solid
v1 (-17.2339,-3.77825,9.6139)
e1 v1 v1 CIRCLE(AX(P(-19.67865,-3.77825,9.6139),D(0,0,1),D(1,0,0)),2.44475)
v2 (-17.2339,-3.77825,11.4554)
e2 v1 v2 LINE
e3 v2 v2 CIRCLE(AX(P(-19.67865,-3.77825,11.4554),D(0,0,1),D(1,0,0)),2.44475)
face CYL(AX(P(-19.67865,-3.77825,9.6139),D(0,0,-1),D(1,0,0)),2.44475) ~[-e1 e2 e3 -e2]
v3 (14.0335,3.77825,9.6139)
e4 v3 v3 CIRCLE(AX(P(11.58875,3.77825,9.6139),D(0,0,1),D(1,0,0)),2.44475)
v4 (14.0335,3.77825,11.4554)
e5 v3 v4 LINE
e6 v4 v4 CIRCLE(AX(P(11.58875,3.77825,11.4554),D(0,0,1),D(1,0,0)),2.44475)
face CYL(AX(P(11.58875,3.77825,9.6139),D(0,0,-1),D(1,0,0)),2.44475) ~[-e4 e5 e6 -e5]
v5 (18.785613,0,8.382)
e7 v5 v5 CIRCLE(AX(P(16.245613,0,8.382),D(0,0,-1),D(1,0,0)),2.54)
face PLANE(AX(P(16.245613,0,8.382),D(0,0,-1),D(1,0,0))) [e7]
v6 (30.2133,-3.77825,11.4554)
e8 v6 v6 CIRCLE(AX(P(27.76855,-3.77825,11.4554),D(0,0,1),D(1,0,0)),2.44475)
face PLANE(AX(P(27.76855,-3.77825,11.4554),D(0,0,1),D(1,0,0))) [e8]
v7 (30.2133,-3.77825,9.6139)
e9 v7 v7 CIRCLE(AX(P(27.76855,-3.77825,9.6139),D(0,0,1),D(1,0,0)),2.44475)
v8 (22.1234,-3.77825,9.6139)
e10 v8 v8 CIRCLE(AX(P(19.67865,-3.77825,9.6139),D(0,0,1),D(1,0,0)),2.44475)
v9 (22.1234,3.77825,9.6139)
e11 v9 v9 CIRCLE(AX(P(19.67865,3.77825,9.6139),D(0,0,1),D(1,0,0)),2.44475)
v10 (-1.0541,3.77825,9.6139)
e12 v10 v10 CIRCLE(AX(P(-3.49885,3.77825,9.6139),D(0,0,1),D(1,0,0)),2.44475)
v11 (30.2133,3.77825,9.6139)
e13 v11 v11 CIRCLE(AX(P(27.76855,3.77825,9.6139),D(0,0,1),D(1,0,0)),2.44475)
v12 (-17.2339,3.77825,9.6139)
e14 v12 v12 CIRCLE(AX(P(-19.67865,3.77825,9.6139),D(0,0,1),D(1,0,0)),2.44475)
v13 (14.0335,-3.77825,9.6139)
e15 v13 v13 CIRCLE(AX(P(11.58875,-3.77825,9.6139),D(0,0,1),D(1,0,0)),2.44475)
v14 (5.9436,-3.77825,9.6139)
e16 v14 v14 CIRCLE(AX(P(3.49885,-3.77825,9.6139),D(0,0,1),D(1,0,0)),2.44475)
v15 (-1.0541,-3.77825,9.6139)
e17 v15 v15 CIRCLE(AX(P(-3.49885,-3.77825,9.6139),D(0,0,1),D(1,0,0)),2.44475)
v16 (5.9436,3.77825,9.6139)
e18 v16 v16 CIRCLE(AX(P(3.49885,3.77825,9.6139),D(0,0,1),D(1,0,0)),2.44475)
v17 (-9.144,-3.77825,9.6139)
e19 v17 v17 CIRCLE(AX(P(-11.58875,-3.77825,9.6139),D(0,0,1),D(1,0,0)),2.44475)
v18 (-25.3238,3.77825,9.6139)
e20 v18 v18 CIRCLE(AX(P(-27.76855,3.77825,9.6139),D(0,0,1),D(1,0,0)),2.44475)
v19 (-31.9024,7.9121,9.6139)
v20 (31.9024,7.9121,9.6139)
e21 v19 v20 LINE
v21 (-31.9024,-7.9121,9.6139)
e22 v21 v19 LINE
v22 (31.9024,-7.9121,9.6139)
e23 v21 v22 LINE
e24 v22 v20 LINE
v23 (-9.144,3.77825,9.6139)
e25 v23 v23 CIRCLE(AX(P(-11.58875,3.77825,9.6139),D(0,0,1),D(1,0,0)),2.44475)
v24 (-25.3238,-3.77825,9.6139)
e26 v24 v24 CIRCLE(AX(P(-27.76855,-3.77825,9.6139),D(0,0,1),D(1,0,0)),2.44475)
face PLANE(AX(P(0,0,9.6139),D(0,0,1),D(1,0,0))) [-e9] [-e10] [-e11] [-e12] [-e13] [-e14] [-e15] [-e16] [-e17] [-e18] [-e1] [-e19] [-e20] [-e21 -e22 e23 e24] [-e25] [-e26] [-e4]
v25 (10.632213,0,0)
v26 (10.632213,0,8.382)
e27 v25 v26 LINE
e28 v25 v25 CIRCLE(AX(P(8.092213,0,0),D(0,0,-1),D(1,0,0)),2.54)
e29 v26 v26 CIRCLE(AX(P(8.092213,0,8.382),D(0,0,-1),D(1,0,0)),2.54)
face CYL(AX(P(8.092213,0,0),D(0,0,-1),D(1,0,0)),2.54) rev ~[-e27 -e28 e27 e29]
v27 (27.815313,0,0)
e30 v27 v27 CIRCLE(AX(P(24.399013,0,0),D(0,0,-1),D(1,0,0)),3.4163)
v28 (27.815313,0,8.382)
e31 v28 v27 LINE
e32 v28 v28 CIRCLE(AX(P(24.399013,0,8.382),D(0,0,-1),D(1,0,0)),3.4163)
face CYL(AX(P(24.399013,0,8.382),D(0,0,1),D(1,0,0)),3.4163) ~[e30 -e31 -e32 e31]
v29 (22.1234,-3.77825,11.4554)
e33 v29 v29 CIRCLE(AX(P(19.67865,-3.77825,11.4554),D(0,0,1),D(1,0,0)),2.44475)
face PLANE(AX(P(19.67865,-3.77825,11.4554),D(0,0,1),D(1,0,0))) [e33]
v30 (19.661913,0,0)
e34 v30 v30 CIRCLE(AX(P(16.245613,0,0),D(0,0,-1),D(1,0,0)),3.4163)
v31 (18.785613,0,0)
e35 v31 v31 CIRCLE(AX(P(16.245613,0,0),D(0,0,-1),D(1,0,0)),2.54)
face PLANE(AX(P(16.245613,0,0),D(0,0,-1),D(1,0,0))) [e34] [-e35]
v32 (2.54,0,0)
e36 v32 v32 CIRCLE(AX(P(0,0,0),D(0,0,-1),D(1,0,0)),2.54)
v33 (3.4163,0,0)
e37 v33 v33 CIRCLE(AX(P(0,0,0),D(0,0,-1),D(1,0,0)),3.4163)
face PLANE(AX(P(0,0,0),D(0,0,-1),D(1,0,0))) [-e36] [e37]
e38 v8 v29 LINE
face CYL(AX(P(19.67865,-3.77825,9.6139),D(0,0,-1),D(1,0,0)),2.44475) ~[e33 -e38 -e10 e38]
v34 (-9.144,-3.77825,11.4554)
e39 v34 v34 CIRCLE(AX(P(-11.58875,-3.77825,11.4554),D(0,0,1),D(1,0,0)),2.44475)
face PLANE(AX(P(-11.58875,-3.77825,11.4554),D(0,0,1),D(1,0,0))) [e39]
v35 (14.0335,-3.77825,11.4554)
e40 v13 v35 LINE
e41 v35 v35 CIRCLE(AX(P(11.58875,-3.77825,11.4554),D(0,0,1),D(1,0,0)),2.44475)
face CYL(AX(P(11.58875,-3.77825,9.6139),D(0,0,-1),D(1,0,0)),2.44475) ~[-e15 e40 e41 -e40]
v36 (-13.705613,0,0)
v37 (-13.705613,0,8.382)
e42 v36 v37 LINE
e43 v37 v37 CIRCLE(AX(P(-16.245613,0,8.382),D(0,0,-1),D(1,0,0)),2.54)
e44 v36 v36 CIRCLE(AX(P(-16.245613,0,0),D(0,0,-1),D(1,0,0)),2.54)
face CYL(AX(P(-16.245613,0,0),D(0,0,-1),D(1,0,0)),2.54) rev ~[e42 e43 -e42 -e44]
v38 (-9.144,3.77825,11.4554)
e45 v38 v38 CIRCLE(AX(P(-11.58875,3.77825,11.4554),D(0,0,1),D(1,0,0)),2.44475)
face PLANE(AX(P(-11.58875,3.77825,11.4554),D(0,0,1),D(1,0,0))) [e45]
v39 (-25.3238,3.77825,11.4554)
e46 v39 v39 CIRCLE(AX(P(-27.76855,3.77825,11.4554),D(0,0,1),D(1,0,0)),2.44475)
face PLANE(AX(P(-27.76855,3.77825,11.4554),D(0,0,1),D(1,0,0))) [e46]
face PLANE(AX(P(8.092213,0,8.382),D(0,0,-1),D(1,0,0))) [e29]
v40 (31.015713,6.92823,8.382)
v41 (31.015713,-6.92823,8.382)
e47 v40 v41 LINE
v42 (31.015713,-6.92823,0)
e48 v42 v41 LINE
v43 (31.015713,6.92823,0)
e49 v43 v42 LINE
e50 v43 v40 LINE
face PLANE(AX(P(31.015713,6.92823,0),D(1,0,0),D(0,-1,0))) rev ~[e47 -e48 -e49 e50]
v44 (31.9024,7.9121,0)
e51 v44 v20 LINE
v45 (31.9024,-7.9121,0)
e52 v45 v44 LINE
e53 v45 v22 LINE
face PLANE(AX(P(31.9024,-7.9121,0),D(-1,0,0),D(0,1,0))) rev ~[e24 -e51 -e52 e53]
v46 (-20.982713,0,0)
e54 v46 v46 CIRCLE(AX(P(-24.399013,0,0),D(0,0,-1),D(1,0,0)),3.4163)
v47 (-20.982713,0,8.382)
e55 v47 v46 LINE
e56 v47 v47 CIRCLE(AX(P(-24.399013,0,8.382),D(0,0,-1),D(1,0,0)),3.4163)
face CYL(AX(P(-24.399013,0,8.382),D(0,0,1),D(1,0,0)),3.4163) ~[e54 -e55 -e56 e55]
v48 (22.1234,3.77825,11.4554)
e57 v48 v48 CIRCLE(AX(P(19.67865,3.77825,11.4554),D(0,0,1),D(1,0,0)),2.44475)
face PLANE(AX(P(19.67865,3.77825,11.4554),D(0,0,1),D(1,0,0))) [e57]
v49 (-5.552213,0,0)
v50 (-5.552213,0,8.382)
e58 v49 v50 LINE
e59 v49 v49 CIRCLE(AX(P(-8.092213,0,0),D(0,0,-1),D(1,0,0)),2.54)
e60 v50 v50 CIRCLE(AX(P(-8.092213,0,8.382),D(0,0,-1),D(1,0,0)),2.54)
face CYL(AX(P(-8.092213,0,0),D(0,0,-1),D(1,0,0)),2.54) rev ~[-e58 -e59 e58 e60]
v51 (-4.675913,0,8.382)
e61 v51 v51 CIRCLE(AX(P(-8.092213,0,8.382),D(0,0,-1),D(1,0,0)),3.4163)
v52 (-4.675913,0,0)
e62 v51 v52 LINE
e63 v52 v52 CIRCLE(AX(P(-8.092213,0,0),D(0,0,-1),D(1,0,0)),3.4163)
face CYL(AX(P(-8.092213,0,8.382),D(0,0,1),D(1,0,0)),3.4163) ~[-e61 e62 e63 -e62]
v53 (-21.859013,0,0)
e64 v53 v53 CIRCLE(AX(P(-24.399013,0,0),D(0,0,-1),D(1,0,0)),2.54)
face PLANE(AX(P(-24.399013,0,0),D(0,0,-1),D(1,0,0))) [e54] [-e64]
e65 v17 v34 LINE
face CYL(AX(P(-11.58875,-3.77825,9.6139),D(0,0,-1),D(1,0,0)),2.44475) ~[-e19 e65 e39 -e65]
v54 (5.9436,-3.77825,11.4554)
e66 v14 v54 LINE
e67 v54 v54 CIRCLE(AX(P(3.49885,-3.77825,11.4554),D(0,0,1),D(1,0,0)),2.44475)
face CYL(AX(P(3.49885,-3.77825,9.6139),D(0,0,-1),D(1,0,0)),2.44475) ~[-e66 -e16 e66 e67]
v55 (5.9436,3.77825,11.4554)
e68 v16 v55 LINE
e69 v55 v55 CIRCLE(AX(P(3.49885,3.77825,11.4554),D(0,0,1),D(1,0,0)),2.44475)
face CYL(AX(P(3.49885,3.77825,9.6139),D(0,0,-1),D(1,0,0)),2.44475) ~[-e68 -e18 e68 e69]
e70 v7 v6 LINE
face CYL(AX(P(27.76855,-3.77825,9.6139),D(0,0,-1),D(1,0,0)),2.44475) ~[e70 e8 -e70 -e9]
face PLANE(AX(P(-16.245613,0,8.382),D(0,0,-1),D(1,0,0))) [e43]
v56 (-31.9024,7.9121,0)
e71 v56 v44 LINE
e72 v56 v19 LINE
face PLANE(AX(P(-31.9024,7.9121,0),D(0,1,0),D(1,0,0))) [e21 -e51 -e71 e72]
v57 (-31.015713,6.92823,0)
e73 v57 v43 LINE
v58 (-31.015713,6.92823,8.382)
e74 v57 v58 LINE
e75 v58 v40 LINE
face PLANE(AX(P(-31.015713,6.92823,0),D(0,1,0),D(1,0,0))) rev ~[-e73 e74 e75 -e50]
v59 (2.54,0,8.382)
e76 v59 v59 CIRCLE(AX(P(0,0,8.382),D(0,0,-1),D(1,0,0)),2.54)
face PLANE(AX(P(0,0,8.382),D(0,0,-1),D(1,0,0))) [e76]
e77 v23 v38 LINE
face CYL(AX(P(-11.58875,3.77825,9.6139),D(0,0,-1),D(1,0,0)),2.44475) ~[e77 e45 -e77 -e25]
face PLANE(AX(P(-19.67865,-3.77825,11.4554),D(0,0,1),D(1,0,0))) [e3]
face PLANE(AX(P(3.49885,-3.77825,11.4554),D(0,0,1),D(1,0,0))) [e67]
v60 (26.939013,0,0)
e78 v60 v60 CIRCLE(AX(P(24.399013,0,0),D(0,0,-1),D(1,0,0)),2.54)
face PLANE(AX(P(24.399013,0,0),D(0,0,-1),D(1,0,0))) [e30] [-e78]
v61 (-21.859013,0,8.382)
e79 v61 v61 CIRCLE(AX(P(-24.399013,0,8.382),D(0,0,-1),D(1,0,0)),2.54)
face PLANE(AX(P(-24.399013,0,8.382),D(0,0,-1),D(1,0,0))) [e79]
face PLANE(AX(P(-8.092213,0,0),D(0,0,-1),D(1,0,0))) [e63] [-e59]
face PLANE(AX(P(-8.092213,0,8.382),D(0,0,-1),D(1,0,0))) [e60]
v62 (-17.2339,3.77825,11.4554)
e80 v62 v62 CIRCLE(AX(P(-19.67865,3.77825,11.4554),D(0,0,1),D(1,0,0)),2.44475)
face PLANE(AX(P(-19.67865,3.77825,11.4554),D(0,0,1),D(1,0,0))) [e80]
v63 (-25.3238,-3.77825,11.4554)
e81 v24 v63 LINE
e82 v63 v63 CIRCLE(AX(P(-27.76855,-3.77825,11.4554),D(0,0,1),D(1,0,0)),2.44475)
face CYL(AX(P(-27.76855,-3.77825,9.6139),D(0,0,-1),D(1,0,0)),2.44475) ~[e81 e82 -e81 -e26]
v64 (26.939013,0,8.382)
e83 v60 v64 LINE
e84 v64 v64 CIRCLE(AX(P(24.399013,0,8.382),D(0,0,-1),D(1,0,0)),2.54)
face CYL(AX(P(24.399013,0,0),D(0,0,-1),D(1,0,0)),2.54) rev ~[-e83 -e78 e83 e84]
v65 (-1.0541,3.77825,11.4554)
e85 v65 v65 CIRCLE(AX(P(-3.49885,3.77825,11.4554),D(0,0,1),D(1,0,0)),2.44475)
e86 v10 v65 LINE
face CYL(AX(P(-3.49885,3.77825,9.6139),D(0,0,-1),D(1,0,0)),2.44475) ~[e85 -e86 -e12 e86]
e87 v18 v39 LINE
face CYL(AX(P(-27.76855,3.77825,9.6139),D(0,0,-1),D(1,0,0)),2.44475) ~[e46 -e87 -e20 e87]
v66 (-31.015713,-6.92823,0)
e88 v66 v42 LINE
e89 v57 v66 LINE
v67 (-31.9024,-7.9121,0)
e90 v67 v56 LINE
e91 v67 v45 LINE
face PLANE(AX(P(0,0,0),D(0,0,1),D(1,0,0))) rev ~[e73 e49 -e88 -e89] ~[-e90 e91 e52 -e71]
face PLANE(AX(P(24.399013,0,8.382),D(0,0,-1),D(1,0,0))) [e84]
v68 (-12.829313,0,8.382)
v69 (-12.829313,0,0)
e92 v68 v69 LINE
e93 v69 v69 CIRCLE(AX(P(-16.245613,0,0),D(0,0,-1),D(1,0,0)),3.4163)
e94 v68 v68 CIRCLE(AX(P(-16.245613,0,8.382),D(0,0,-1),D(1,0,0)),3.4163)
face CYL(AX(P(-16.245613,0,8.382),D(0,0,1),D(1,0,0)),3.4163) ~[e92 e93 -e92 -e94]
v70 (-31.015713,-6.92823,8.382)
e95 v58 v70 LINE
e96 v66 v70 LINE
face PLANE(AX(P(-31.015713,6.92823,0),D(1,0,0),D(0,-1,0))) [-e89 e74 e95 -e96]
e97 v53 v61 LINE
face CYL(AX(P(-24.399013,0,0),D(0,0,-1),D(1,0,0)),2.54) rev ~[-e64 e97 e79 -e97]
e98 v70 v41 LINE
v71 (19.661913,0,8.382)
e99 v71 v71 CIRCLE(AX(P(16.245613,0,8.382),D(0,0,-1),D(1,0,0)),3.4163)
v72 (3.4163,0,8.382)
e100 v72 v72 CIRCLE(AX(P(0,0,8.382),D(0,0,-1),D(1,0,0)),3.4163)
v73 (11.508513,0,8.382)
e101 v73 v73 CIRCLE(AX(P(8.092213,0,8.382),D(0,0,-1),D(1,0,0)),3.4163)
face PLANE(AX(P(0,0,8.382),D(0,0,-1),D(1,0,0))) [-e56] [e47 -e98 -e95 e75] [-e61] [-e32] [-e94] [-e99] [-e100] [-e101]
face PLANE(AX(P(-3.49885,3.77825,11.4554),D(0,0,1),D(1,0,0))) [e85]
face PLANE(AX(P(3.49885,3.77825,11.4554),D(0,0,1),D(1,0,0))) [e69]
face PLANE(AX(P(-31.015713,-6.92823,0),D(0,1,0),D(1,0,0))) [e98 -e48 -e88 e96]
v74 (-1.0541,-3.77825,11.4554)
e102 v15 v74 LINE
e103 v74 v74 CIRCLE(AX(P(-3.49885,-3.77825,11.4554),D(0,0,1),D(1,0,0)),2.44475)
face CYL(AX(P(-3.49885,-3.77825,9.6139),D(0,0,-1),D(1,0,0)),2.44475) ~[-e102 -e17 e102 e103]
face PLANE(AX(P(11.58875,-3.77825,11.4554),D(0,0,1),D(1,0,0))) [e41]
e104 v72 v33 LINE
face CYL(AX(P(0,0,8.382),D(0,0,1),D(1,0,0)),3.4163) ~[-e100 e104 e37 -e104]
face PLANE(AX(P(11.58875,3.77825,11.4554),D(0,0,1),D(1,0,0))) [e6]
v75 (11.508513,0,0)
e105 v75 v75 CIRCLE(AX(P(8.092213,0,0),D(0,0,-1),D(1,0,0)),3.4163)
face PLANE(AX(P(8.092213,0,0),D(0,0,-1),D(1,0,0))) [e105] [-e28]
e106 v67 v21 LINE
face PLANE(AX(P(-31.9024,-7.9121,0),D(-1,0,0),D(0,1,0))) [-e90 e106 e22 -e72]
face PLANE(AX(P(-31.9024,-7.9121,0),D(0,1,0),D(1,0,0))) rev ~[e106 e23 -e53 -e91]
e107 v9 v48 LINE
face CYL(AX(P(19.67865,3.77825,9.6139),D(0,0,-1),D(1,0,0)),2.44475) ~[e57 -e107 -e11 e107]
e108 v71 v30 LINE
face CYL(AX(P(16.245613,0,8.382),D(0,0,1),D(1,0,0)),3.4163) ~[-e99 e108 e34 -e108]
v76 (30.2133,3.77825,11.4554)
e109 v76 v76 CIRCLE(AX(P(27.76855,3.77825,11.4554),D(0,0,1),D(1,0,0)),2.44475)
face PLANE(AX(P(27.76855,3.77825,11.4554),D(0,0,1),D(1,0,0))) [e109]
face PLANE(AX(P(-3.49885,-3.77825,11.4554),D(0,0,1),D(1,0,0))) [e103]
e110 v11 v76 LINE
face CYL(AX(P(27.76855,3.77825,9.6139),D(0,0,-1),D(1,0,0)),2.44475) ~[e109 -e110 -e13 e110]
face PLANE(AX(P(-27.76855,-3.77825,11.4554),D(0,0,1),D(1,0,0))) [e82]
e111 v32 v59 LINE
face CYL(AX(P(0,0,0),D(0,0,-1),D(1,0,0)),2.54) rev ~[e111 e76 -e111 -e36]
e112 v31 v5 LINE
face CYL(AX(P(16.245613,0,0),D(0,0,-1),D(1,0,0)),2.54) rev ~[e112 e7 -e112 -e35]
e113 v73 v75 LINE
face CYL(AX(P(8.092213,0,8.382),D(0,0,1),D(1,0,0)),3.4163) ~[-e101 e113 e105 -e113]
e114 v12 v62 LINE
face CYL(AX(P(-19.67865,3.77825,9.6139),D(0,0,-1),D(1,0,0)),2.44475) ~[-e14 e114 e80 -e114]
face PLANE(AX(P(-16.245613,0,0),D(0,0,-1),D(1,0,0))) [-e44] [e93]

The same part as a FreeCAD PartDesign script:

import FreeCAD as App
import Part
import Sketcher

V = App.Vector
Q = App.Units.Quantity


def add_polygon(sketch, points):
    """Adds a closed chain of lines whose ends are joined by coincident constraints."""
    first, n = sketch.GeometryCount, len(points)
    for a, b in zip(points, points[1:] + points[:1]):
        sketch.addGeometry(Part.LineSegment(App.Vector(*a, 0), App.Vector(*b, 0)), False)
    for i in range(n):
        sketch.addConstraint(Sketcher.Constraint("Coincident", first + i, 2, first + (i + 1) % n, 1))

doc = App.newDocument("Part")
body = doc.addObject("PartDesign::Body", "Body")

# Sketch on XY plane
sketch1 = body.newObject("Sketcher::SketchObject", "Sketch")
sketch1.AttachmentSupport = (doc.getObject("XY_Plane"), [""])
sketch1.MapMode = "FlatFace"
add_polygon(sketch1, [(-32, 8), (-32, -8), (32, -8), (32, 8)])  # lines 0-3
sketch1.addConstraint([
    Sketcher.Constraint("Vertical", 0),
    Sketcher.Constraint("Horizontal", 1),
    Sketcher.Constraint("Vertical", 2),
    Sketcher.Constraint("Horizontal", 3),
    Sketcher.Constraint("Symmetric", 0, 2, 2, 2, -1, 1),
    Sketcher.Constraint("DistanceX", 1, 1, 1, 2, Q("2.512 in")),
    Sketcher.Constraint("DistanceY", 0, 2, 0, 1, Q("0.623 in")),
])
pad1 = body.newObject("PartDesign::Pad", "Pad")
pad1.Profile = sketch1
pad1.Length = Q("0.3785 in")

# Sketch on XY plane
sketch2 = body.newObject("Sketcher::SketchObject", "Sketch001")
sketch2.AttachmentSupport = (doc.getObject("XY_Plane"), [""])
sketch2.MapMode = "FlatFace"
sketch2.AttachmentOffset = App.Placement(V(0, 0, 0.3785 * 25.4), App.Rotation())
sketch2.addGeometry([
    Part.Circle(V(-27.8, 3.8, 0), V(0, 0, 1), 2.4),  # 0
    Part.Circle(V(11.6, -3.8, 0), V(0, 0, 1), 2.4),  # 1
    Part.Circle(V(-3.5, -3.8, 0), V(0, 0, 1), 2.4),  # 2
    Part.Circle(V(3.5, -3.8, 0), V(0, 0, 1), 2.4),  # 3
    Part.Circle(V(19.7, -3.8, 0), V(0, 0, 1), 2.4),  # 4
    Part.Circle(V(27.8, -3.8, 0), V(0, 0, 1), 2.4),  # 5
    Part.Circle(V(27.8, 3.8, 0), V(0, 0, 1), 2.4),  # 6
    Part.Circle(V(19.7, 3.8, 0), V(0, 0, 1), 2.4),  # 7
    Part.Circle(V(11.6, 3.8, 0), V(0, 0, 1), 2.4),  # 8
    Part.Circle(V(-27.8, -3.8, 0), V(0, 0, 1), 2.4),  # 9
    Part.Circle(V(3.5, 3.8, 0), V(0, 0, 1), 2.4),  # 10
    Part.Circle(V(-3.5, 3.8, 0), V(0, 0, 1), 2.4),  # 11
    Part.Circle(V(-11.6, 3.8, 0), V(0, 0, 1), 2.4),  # 12
    Part.Circle(V(-11.6, -3.8, 0), V(0, 0, 1), 2.4),  # 13
    Part.Circle(V(-19.7, -3.8, 0), V(0, 0, 1), 2.4),  # 14
    Part.Circle(V(-19.7, 3.8, 0), V(0, 0, 1), 2.4),  # 15
], False)
sketch2.addConstraint([
    Sketcher.Constraint("Equal", 0, 1),
    Sketcher.Constraint("Equal", 1, 2),
    Sketcher.Constraint("Equal", 2, 3),
    Sketcher.Constraint("Equal", 3, 4),
    Sketcher.Constraint("Equal", 4, 5),
    Sketcher.Constraint("Equal", 5, 6),
    Sketcher.Constraint("Equal", 6, 7),
    Sketcher.Constraint("Equal", 7, 8),
    Sketcher.Constraint("Equal", 8, 9),
    Sketcher.Constraint("Equal", 9, 10),
    Sketcher.Constraint("Equal", 10, 11),
    Sketcher.Constraint("Equal", 11, 12),
    Sketcher.Constraint("Equal", 12, 13),
    Sketcher.Constraint("Equal", 13, 14),
    Sketcher.Constraint("Equal", 14, 15),
    Sketcher.Constraint("Symmetric", 0, 3, 5, 3, -1, 1),
    Sketcher.Constraint("Symmetric", 6, 3, 9, 3, -1, 1),
    Sketcher.Constraint("Symmetric", 2, 3, 10, 3, -1, 1),
    Sketcher.Constraint("Symmetric", 3, 3, 11, 3, -1, 1),
    Sketcher.Constraint("Symmetric", 1, 3, 12, 3, -1, 1),
    Sketcher.Constraint("Symmetric", 8, 3, 13, 3, -1, 1),
    Sketcher.Constraint("Symmetric", 7, 3, 14, 3, -1, 1),
    Sketcher.Constraint("Symmetric", 4, 3, 15, 3, -1, 1),
    Sketcher.Constraint("Symmetric", 2, 3, 3, 3, -2),
    Sketcher.Constraint("Symmetric", 0, 3, 6, 3, -2),
    Sketcher.Constraint("Symmetric", 8, 3, 12, 3, -2),
    Sketcher.Constraint("Symmetric", 4, 3, 14, 3, -2),
    Sketcher.Constraint("Horizontal", 1, 3, 2, 3),
    Sketcher.Constraint("Horizontal", 3, 3, 4, 3),
    Sketcher.Constraint("Horizontal", 4, 3, 5, 3),
    Sketcher.Constraint("Diameter", 0, Q("0.1925 in")),
    Sketcher.Constraint("DistanceX", 2, 3, 1, 3, Q("0.594 in")),
    Sketcher.Constraint("DistanceX", 0, 3, 3, 3, Q("1.231 in")),
    Sketcher.Constraint("DistanceX", 3, 3, 4, 3, Q("0.637 in")),
    Sketcher.Constraint("DistanceX", 0, 3, 1, 3, Q("1.5495 in")),
    Sketcher.Constraint("DistanceY", 1, 3, 0, 3, Q("0.2975 in")),
])
pad2 = body.newObject("PartDesign::Pad", "Pad001")
pad2.Profile = sketch2
pad2.Length = Q("0.0725 in")

# Sketch on XY plane
sketch3 = body.newObject("Sketcher::SketchObject", "Sketch002")
sketch3.AttachmentSupport = (doc.getObject("XY_Plane"), [""])
sketch3.MapMode = "FlatFace"
add_polygon(sketch3, [(-31, -7), (-31, 7), (31, 7), (31, -7)])  # lines 0-3
sketch3.addConstraint([
    Sketcher.Constraint("Vertical", 0),
    Sketcher.Constraint("Horizontal", 1),
    Sketcher.Constraint("Vertical", 2),
    Sketcher.Constraint("Horizontal", 3),
    Sketcher.Constraint("Symmetric", 0, 2, 2, 2, -1, 1),
    Sketcher.Constraint("DistanceY", 0, 1, 0, 2, 13.85646),
    Sketcher.Constraint("DistanceX", 1, 1, 1, 2, 62.031426),
])
pocket1 = body.newObject("PartDesign::Pocket", "Pocket")
pocket1.Profile = sketch3
pocket1.Length = Q("0.33 in")
pocket1.Reversed = True

# Sketch on XY plane
sketch4 = body.newObject("Sketcher::SketchObject", "Sketch003")
sketch4.AttachmentSupport = (doc.getObject("XY_Plane"), [""])
sketch4.MapMode = "FlatFace"
sketch4.AttachmentOffset = App.Placement(V(0, 0, 0.33 * 25.4), App.Rotation())
sketch4.addGeometry([
    Part.Circle(V(-16.2, 0, 0), V(0, 0, 1), 3.4),  # 0
    Part.Circle(V(-24.4, 0, 0), V(0, 0, 1), 3.4),  # 1
    Part.Circle(V(0, 0, 0), V(0, 0, 1), 3.4),  # 2
    Part.Circle(V(-8.1, 0, 0), V(0, 0, 1), 3.4),  # 3
    Part.Circle(V(8.1, 0, 0), V(0, 0, 1), 3.4),  # 4
    Part.Circle(V(24.4, 0, 0), V(0, 0, 1), 3.4),  # 5
    Part.Circle(V(16.2, 0, 0), V(0, 0, 1), 3.4),  # 6
], False)
sketch4.addConstraint([
    Sketcher.Constraint("Coincident", 2, 3, -1, 1),
    Sketcher.Constraint("Equal", 0, 1),
    Sketcher.Constraint("Equal", 1, 2),
    Sketcher.Constraint("Equal", 2, 3),
    Sketcher.Constraint("Equal", 3, 4),
    Sketcher.Constraint("Equal", 4, 5),
    Sketcher.Constraint("Equal", 5, 6),
    Sketcher.Constraint("Symmetric", 3, 3, 4, 3, -1, 1),
    Sketcher.Constraint("Symmetric", 1, 3, 5, 3, -1, 1),
    Sketcher.Constraint("Symmetric", 0, 3, 6, 3, -1, 1),
    Sketcher.Constraint("PointOnObject", 0, 3, -1),
    Sketcher.Constraint("PointOnObject", 1, 3, -1),
    Sketcher.Constraint("PointOnObject", 3, 3, -1),
    Sketcher.Constraint("Diameter", 0, Q("0.269 in")),
    Sketcher.Constraint("DistanceX", 1, 3, 0, 3, Q("0.321 in")),
    Sketcher.Constraint("DistanceX", 0, 3, 3, 3, Q("0.321 in")),
    Sketcher.Constraint("DistanceX", 0, 3, -1, 1, 16.245613),
])
pad3 = body.newObject("PartDesign::Pad", "Pad002")
pad3.Profile = sketch4
pad3.Length = Q("0.33 in")
pad3.Reversed = True

# Sketch on XY plane
sketch5 = body.newObject("Sketcher::SketchObject", "Sketch004")
sketch5.AttachmentSupport = (doc.getObject("XY_Plane"), [""])
sketch5.MapMode = "FlatFace"
sketch5.addGeometry([
    Part.Circle(V(-24.4, 0, 0), V(0, 0, 1), 2.5),  # 0
    Part.Circle(V(-16.2, 0, 0), V(0, 0, 1), 2.5),  # 1
    Part.Circle(V(-8.1, 0, 0), V(0, 0, 1), 2.5),  # 2
    Part.Circle(V(0, 0, 0), V(0, 0, 1), 2.5),  # 3
    Part.Circle(V(8.1, 0, 0), V(0, 0, 1), 2.5),  # 4
    Part.Circle(V(16.2, 0, 0), V(0, 0, 1), 2.5),  # 5
    Part.Circle(V(24.4, 0, 0), V(0, 0, 1), 2.5),  # 6
], False)
sketch5.addConstraint([
    Sketcher.Constraint("Coincident", 3, 3, -1, 1),
    Sketcher.Constraint("Equal", 0, 1),
    Sketcher.Constraint("Equal", 1, 2),
    Sketcher.Constraint("Equal", 2, 3),
    Sketcher.Constraint("Equal", 3, 4),
    Sketcher.Constraint("Equal", 4, 5),
    Sketcher.Constraint("Equal", 5, 6),
    Sketcher.Constraint("Symmetric", 2, 3, 4, 3, -1, 1),
    Sketcher.Constraint("Symmetric", 1, 3, 5, 3, -1, 1),
    Sketcher.Constraint("Symmetric", 0, 3, 6, 3, -1, 1),
    Sketcher.Constraint("PointOnObject", 0, 3, -1),
    Sketcher.Constraint("PointOnObject", 1, 3, -1),
    Sketcher.Constraint("PointOnObject", 2, 3, -1),
    Sketcher.Constraint("Diameter", 0, Q("0.2 in")),
    Sketcher.Constraint("DistanceX", 0, 3, 1, 3, Q("0.321 in")),
    Sketcher.Constraint("DistanceX", 1, 3, 2, 3, Q("0.321 in")),
    Sketcher.Constraint("DistanceX", 0, 3, -1, 1, 24.399013),
])
pocket2 = body.newObject("PartDesign::Pocket", "Pocket001")
pocket2.Profile = sketch5
pocket2.Length = Q("0.33 in")
pocket2.Reversed = True

doc.recompute()
